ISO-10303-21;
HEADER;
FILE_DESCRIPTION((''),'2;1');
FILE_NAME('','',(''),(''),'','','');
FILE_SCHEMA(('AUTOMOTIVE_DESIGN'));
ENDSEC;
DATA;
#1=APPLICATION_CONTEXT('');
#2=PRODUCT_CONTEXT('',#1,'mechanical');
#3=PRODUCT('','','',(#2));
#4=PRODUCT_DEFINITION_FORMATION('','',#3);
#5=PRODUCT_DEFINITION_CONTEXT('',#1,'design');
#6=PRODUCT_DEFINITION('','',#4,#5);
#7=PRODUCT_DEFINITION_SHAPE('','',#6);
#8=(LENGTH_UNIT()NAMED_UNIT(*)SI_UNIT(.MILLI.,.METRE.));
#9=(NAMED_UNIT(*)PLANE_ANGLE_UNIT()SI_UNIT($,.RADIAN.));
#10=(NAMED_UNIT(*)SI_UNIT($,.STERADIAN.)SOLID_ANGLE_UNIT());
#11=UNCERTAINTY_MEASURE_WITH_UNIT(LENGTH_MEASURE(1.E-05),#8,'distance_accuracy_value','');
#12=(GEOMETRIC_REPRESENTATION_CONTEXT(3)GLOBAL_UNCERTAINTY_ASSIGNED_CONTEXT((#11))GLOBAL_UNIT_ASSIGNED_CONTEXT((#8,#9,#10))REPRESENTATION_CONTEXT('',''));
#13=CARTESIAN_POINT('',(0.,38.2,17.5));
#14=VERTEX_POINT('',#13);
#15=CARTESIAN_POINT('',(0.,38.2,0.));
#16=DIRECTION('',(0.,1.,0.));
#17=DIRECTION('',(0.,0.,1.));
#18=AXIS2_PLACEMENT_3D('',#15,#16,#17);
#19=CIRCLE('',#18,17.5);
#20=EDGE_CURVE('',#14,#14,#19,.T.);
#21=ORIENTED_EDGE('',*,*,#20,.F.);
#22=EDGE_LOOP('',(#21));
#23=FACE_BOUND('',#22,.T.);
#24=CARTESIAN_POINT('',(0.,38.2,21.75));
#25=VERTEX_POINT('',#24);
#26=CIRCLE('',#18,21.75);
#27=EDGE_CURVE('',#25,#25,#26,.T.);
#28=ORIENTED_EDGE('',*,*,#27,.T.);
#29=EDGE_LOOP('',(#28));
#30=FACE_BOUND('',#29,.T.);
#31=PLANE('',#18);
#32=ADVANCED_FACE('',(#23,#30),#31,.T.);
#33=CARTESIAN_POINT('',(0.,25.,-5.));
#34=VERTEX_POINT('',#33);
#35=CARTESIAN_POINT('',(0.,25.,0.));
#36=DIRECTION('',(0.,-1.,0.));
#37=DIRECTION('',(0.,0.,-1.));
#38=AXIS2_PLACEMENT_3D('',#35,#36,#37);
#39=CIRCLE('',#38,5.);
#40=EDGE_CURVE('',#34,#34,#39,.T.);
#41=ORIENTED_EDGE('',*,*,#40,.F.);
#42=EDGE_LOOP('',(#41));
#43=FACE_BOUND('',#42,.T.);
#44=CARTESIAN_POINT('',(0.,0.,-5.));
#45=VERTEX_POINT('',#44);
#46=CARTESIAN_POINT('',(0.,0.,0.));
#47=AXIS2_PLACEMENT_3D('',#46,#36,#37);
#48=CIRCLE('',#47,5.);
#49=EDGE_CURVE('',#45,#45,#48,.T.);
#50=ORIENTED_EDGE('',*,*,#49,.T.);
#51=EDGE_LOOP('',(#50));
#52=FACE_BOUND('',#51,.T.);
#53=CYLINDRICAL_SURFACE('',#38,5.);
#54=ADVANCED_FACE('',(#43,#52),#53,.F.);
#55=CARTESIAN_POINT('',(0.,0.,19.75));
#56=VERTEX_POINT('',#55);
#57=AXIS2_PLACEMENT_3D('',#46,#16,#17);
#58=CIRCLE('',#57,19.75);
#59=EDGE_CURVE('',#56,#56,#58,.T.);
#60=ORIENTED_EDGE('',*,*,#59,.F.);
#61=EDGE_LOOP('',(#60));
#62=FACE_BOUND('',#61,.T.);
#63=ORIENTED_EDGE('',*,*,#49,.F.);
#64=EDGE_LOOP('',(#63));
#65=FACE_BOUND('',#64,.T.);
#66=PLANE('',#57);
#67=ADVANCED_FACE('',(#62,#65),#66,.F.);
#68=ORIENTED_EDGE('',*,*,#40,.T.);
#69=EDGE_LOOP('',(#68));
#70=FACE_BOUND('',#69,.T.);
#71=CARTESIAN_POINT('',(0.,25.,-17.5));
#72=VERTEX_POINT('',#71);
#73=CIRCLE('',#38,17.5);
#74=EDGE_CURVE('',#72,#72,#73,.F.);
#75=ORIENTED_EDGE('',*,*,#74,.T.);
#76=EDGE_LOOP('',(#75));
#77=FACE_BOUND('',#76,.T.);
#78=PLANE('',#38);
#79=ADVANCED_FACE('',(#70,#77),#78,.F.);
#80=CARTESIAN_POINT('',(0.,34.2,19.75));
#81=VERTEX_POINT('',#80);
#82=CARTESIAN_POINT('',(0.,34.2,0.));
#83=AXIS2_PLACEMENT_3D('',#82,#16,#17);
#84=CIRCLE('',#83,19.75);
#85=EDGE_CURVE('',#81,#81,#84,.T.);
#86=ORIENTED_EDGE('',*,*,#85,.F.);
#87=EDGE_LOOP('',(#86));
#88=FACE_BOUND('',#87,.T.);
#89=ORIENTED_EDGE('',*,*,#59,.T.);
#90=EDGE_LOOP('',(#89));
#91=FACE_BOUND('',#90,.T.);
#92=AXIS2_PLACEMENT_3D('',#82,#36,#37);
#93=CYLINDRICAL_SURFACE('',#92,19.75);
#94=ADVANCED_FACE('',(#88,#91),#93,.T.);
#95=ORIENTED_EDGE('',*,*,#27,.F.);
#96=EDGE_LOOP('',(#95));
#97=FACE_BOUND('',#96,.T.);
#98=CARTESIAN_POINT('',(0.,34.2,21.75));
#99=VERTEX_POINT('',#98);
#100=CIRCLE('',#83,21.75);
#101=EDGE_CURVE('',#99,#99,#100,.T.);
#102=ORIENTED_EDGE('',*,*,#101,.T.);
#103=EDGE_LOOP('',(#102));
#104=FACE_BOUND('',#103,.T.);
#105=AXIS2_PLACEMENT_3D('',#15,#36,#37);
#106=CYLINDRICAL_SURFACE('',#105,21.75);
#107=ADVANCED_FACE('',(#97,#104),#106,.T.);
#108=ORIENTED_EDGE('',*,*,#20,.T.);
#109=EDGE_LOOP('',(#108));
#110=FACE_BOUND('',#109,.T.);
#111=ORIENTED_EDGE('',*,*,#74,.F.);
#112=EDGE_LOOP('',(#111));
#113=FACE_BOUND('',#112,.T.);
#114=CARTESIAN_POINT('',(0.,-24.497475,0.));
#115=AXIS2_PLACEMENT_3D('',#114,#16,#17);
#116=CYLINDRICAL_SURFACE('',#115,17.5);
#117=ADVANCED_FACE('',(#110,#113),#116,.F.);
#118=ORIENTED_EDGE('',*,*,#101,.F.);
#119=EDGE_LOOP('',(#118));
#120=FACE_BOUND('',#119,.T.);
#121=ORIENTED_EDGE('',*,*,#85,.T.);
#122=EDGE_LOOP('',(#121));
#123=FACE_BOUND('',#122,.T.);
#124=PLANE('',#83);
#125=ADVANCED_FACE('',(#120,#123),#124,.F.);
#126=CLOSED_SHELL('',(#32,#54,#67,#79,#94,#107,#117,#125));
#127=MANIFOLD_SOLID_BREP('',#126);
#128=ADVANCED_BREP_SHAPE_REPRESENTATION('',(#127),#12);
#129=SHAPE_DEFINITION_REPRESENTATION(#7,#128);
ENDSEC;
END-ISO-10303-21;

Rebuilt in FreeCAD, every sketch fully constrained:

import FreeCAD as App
import Part
import Sketcher

V = App.Vector

doc = App.newDocument("Part")
body = doc.addObject("PartDesign::Body", "Body")

sketch1 = body.newObject("Sketcher::SketchObject", "Sketch")
sketch1.AttachmentSupport = (doc.getObject("XZ_Plane"), [""])
sketch1.MapMode = "FlatFace"
sketch1.addGeometry(Part.Circle(V(0, 0, 0), V(0, 0, 1), 20), False)
sketch1.addConstraint(Sketcher.Constraint("Coincident", 0, 3, -1, 1))
sketch1.addConstraint(Sketcher.Constraint("Diameter", 0, 39.5))
pad1 = body.newObject("PartDesign::Pad", "Pad")
pad1.Profile = sketch1
pad1.Length = 34.2
pad1.Reversed = True

sketch2 = body.newObject("Sketcher::SketchObject", "Sketch001")
sketch2.AttachmentSupport = (doc.getObject("XZ_Plane"), [""])
sketch2.MapMode = "FlatFace"
sketch2.AttachmentOffset = App.Placement(V(0, 0, -34.2), App.Rotation())
sketch2.addGeometry(Part.Circle(V(0, 0, 0), V(0, 0, 1), 22), False)
sketch2.addConstraint(Sketcher.Constraint("Coincident", 0, 3, -1, 1))
sketch2.addConstraint(Sketcher.Constraint("Diameter", 0, 43.5))
pad2 = body.newObject("PartDesign::Pad", "Pad001")
pad2.Profile = sketch2
pad2.Length = 4
pad2.Reversed = True

sketch3 = body.newObject("Sketcher::SketchObject", "Sketch002")
sketch3.AttachmentSupport = (doc.getObject("XZ_Plane"), [""])
sketch3.MapMode = "FlatFace"
sketch3.addGeometry(Part.Circle(V(0, 0, 0), V(0, 0, 1), 5), False)
sketch3.addConstraint(Sketcher.Constraint("Coincident", 0, 3, -1, 1))
sketch3.addConstraint(Sketcher.Constraint("Diameter", 0, 10.0))
pocket1 = body.newObject("PartDesign::Pocket", "Pocket")
pocket1.Profile = sketch3
pocket1.Length = 25

sketch4 = body.newObject("Sketcher::SketchObject", "Sketch003")
sketch4.AttachmentSupport = (doc.getObject("XZ_Plane"), [""])
sketch4.MapMode = "FlatFace"
sketch4.AttachmentOffset = App.Placement(V(0, 0, -38.2), App.Rotation())
sketch4.addGeometry(Part.Circle(V(0, 0, 0), V(0, 0, 1), 18), False)
sketch4.addConstraint(Sketcher.Constraint("Coincident", 0, 3, -1, 1))
sketch4.addConstraint(Sketcher.Constraint("Diameter", 0, 35.0))
pocket2 = body.newObject("PartDesign::Pocket", "Pocket001")
pocket2.Profile = sketch4
pocket2.Length = 13.2
pocket2.Reversed = True

doc.recompute()
